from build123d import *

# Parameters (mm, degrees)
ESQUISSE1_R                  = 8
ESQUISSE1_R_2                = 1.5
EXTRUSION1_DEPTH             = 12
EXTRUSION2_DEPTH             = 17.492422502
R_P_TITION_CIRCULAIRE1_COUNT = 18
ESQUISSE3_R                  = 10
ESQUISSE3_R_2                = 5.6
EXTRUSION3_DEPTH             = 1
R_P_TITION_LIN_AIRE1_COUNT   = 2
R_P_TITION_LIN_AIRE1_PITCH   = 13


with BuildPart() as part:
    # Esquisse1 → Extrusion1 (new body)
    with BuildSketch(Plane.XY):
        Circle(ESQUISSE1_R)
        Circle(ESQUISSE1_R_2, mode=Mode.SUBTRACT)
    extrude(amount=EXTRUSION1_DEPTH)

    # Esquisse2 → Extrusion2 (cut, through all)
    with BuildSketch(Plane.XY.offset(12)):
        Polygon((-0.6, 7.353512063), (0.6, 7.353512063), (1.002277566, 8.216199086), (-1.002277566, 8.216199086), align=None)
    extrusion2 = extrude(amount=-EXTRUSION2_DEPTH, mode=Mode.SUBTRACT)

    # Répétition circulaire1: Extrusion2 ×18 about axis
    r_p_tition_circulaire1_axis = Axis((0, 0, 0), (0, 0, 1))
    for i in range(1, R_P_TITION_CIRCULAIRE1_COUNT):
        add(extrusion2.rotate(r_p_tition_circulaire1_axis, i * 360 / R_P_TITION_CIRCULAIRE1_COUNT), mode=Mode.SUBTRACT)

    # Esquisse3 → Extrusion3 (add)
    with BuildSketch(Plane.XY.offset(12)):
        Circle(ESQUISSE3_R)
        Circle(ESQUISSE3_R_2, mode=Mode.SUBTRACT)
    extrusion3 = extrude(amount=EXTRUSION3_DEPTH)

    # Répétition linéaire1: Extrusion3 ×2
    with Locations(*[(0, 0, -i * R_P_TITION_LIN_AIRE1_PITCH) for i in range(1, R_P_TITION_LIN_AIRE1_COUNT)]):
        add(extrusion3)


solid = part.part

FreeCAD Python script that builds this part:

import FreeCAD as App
import Part
import Sketcher

V = App.Vector
Q = App.Units.Quantity


def add_polygon(sketch, points):
    """Adds a closed chain of lines whose ends are joined by coincident constraints."""
    first, n = sketch.GeometryCount, len(points)
    for a, b in zip(points, points[1:] + points[:1]):
        sketch.addGeometry(Part.LineSegment(App.Vector(*a, 0), App.Vector(*b, 0)), False)
    for i in range(n):
        sketch.addConstraint(Sketcher.Constraint("Coincident", first + i, 2, first + (i + 1) % n, 1))

doc = App.newDocument("Part")
body = doc.addObject("PartDesign::Body", "Body")

# Sketch on XY plane
sketch1 = body.newObject("Sketcher::SketchObject", "Sketch")
sketch1.AttachmentSupport = (doc.getObject("XY_Plane"), [""])
sketch1.MapMode = "FlatFace"
sketch1.addGeometry([
    Part.Circle(V(0, 0, 0), V(0, 0, 1), 8),
    Part.Circle(V(0, 0, 0), V(0, 0, 1), 1.5),
], False)
sketch1.addConstraint([
    Sketcher.Constraint("Coincident", 0, 3, -1, 1),
    Sketcher.Constraint("Coincident", 1, 3, -1, 1),
    Sketcher.Constraint("Diameter", 0, 16.0),
    Sketcher.Constraint("Diameter", 1, 3.0),
])
pad1 = body.newObject("PartDesign::Pad", "Pad")
pad1.Profile = sketch1
pad1.Length = 12

# Sketch on XY plane
sketch2 = body.newObject("Sketcher::SketchObject", "Sketch001")
sketch2.AttachmentSupport = (doc.getObject("XY_Plane"), [""])
sketch2.MapMode = "FlatFace"
sketch2.AttachmentOffset = App.Placement(V(0, 0, 12), App.Rotation())
add_polygon(sketch2, [(-0.6, 7.4), (0.6, 7.4), (1, 8.2), (-1, 8.2)])  # lines 0-3
sketch2.addConstraint([
    Sketcher.Constraint("Horizontal", 0),
    Sketcher.Constraint("Horizontal", 2),
    Sketcher.Constraint("Equal", 1, 3),
    Sketcher.Constraint("Angle", 1, Q("65 deg")),
    Sketcher.Constraint("DistanceX", 0, 1, 0, 2, 1.2),
    Sketcher.Constraint("DistanceX", -1, 1, 0, 2, 0.6),
    Sketcher.Constraint("DistanceY", -1, 1, 1, 2, 8.216199),
    Sketcher.Constraint("Distance", 1, 0.95187),
])
pocket1 = body.newObject("PartDesign::Pocket", "Pocket")
pocket1.Profile = sketch2
pocket1.Type = "ThroughAll"
doc.recompute()

polarpattern = body.newObject("PartDesign::PolarPattern", "PolarPattern")
polarpattern.Originals = [pocket1]
polarpattern.Axis = (doc.getObject("Z_Axis"), [""])
polarpattern.Angle = 360
polarpattern.Occurrences = 18
body.Tip = polarpattern

# Sketch on XY plane
sketch3 = body.newObject("Sketcher::SketchObject", "Sketch002")
sketch3.AttachmentSupport = (doc.getObject("XY_Plane"), [""])
sketch3.MapMode = "FlatFace"
sketch3.AttachmentOffset = App.Placement(V(0, 0, 12), App.Rotation())
sketch3.addGeometry([
    Part.Circle(V(0, 0, 0), V(0, 0, 1), 10),
    Part.Circle(V(0, 0, 0), V(0, 0, 1), 6),
], False)
sketch3.addConstraint([
    Sketcher.Constraint("Coincident", 0, 3, -1, 1),
    Sketcher.Constraint("Coincident", 1, 3, -1, 1),
    Sketcher.Constraint("Diameter", 0, 20.0),
    Sketcher.Constraint("Diameter", 1, 11.2),
])
pad2 = body.newObject("PartDesign::Pad", "Pad001")
pad2.Profile = sketch3
pad2.Length = 1
doc.recompute()

linearpattern = body.newObject("PartDesign::LinearPattern", "LinearPattern")
linearpattern.Originals = [pad2]
linearpattern.Direction = (doc.getObject("Z_Axis"), [""])
linearpattern.Mode = "offset"
linearpattern.Offset = 13
linearpattern.Occurrences = 2
linearpattern.Reversed = True
body.Tip = linearpattern

doc.recompute()
